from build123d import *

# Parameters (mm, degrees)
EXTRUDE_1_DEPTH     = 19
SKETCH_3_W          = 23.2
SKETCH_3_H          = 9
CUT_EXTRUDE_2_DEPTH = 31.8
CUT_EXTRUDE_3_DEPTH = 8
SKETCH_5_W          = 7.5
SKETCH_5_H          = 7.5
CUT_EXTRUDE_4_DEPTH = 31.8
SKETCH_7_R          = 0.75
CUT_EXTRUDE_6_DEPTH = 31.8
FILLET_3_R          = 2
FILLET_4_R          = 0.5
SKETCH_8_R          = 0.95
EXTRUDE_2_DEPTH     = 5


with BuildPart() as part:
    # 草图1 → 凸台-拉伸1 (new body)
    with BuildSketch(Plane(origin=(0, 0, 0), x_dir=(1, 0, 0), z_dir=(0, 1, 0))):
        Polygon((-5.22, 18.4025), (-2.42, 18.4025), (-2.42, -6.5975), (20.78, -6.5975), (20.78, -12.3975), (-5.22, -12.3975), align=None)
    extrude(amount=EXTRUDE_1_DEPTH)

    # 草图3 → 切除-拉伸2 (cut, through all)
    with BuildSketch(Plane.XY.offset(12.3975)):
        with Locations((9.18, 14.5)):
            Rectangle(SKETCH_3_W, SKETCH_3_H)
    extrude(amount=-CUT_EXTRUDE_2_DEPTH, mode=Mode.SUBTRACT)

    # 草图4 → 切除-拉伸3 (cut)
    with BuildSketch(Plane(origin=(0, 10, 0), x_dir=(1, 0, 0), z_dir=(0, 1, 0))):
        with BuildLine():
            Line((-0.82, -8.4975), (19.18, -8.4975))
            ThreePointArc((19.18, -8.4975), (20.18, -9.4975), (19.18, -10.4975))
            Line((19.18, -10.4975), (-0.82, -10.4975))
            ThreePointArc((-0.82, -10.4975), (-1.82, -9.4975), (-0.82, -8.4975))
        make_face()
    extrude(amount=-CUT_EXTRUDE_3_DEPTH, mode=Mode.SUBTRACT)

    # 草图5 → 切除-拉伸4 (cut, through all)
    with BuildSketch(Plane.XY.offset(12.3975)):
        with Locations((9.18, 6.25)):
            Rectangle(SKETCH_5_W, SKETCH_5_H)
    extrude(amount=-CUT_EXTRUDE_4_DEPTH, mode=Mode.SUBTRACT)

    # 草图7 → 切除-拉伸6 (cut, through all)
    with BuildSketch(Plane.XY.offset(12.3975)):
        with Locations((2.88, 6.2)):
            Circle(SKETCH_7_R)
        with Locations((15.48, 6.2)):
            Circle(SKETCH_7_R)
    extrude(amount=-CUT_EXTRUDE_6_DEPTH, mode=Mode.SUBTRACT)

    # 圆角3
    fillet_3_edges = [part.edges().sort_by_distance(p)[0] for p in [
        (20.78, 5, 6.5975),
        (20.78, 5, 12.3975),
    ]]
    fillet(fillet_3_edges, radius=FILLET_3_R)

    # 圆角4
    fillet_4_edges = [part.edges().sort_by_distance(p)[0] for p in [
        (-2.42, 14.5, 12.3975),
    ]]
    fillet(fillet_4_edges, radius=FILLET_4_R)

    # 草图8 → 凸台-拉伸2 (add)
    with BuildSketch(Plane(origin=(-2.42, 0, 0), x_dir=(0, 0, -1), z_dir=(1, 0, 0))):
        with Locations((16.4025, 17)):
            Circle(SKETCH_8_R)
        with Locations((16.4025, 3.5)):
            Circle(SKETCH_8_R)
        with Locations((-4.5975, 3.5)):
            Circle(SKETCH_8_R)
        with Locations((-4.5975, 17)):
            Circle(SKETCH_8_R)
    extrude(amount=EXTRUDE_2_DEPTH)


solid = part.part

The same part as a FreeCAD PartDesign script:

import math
import FreeCAD as App
import Part
import Sketcher
Q = App.Units.Quantity


def edges_at(feature, points):
    """Names of the edges that pass closest to the given points."""
    edges = feature.Shape.Edges
    near = lambda p: min(range(len(edges)), key=lambda i: edges[i].distToShape(Part.Vertex(*p))[0])
    return sorted({f"Edge{near(p) + 1}" for p in points})

doc = App.newDocument("Part")
body = doc.addObject("PartDesign::Body", "Body")

sketch1 = body.newObject("Sketcher::SketchObject", "Sketch")
sketch1.AttachmentSupport = (doc.getObject("XZ_Plane"), [""])
sketch1.MapMode = "FlatFace"
sketch1.addGeometry([
    Part.LineSegment(App.Vector(-2.42, -18.4025, 0), App.Vector(-5.22, -18.4025, 0)),
    Part.LineSegment(App.Vector(-5.22, -18.4025, 0), App.Vector(-5.22, 12.3975, 0)),
    Part.LineSegment(App.Vector(-5.22, 12.3975, 0), App.Vector(20.78, 12.3975, 0)),
    Part.LineSegment(App.Vector(20.78, 12.3975, 0), App.Vector(20.78, 6.5975, 0)),
    Part.LineSegment(App.Vector(20.78, 6.5975, 0), App.Vector(-2.42, 6.5975, 0)),
    Part.LineSegment(App.Vector(-2.42, 6.5975, 0), App.Vector(-2.42, -18.4025, 0)),
], False)
sketch1.addConstraint([
    Sketcher.Constraint("Coincident", 0, 2, 1, 1),
    Sketcher.Constraint("Coincident", 1, 2, 2, 1),
    Sketcher.Constraint("Coincident", 2, 2, 3, 1),
    Sketcher.Constraint("Coincident", 3, 2, 4, 1),
    Sketcher.Constraint("Coincident", 4, 2, 5, 1),
    Sketcher.Constraint("Coincident", 5, 2, 0, 1),
    Sketcher.Constraint("Horizontal", 0),
    Sketcher.Constraint("Vertical", 1),
    Sketcher.Constraint("Horizontal", 2),
    Sketcher.Constraint("Vertical", 3),
    Sketcher.Constraint("Horizontal", 4),
    Sketcher.Constraint("Vertical", 5),
    Sketcher.Constraint("DistanceX", 2, 1, 2, 2, Q("26 mm")),
    Sketcher.Constraint("DistanceY", 5, 2, 5, 1, Q("25 mm")),
    Sketcher.Constraint("DistanceX", 0, 2, 0, 1, Q("2.8 mm")),
    Sketcher.Constraint("DistanceY", 1, 1, 1, 2, Q("30.8 mm")),
    Sketcher.Constraint("DistanceX", 0, 2, -1, 1, Q("5.22 mm")),
    Sketcher.Constraint("DistanceY", 0, 2, -1, 1, Q("18.4025 mm")),
])
pad1 = body.newObject("PartDesign::Pad", "Pad")
pad1.Profile = sketch1
pad1.Length = 19
pad1.Reversed = True

sketch2 = body.newObject("Sketcher::SketchObject", "Sketch001")
sketch2.AttachmentSupport = (doc.getObject("XY_Plane"), [""])
sketch2.MapMode = "FlatFace"
sketch2.AttachmentOffset = App.Placement(App.Vector(0, 0, 12.3975), App.Rotation())
sketch2.addGeometry([
    Part.LineSegment(App.Vector(-2.42, 19, 0), App.Vector(-2.42, 10, 0)),
    Part.LineSegment(App.Vector(-2.42, 10, 0), App.Vector(20.78, 10, 0)),
    Part.LineSegment(App.Vector(20.78, 10, 0), App.Vector(20.78, 19, 0)),
    Part.LineSegment(App.Vector(20.78, 19, 0), App.Vector(-2.42, 19, 0)),
], False)
sketch2.addConstraint([
    Sketcher.Constraint("Coincident", 0, 2, 1, 1),
    Sketcher.Constraint("Coincident", 1, 2, 2, 1),
    Sketcher.Constraint("Coincident", 2, 2, 3, 1),
    Sketcher.Constraint("Coincident", 3, 2, 0, 1),
    Sketcher.Constraint("Vertical", 0),
    Sketcher.Constraint("Horizontal", 1),
    Sketcher.Constraint("Vertical", 2),
    Sketcher.Constraint("Horizontal", 3),
    Sketcher.Constraint("DistanceY", 0, 2, 0, 1, Q("9 mm")),
    Sketcher.Constraint("DistanceX", 1, 1, 1, 2, Q("23.2 mm")),
    Sketcher.Constraint("DistanceY", -1, 1, 0, 2, Q("10 mm")),
    Sketcher.Constraint("DistanceX", 0, 2, -1, 1, Q("2.42 mm")),
])
pocket1 = body.newObject("PartDesign::Pocket", "Pocket")
pocket1.Profile = sketch2
pocket1.Type = "ThroughAll"

sketch3 = body.newObject("Sketcher::SketchObject", "Sketch002")
sketch3.AttachmentSupport = (doc.getObject("XZ_Plane"), [""])
sketch3.MapMode = "FlatFace"
sketch3.AttachmentOffset = App.Placement(App.Vector(0, 0, -10), App.Rotation())
sketch3.addGeometry([
    Part.LineSegment(App.Vector(19.18, 8.4975, 0), App.Vector(-0.82, 8.4975, 0)),
    Part.ArcOfCircle(Part.Circle(App.Vector(-0.82, 9.4975, 0), App.Vector(0, 0, 1), 1), math.radians(90), math.radians(270)),
    Part.LineSegment(App.Vector(-0.82, 10.4975, 0), App.Vector(19.18, 10.4975, 0)),
    Part.ArcOfCircle(Part.Circle(App.Vector(19.18, 9.4975, 0), App.Vector(0, 0, 1), 1), math.radians(-90), math.radians(90)),
], False)
sketch3.addConstraint([
    Sketcher.Constraint("Tangent", 0, 2, 1, 2),
    Sketcher.Constraint("Tangent", 1, 1, 2, 1),
    Sketcher.Constraint("Tangent", 2, 2, 3, 2),
    Sketcher.Constraint("Tangent", 3, 1, 0, 1),
    Sketcher.Constraint("Horizontal", 0),
    Sketcher.Constraint("Horizontal", 2),
    Sketcher.Constraint("Radius", 1, Q("1 mm")),
    Sketcher.Constraint("DistanceX", 0, 2, 0, 1, Q("20 mm")),
    Sketcher.Constraint("DistanceX", 1, 3, -1, 1, Q("0.82 mm")),
    Sketcher.Constraint("DistanceY", -1, 1, 1, 3, Q("9.4975 mm")),
])
pocket2 = body.newObject("PartDesign::Pocket", "Pocket001")
pocket2.Profile = sketch3
pocket2.Length = 8
pocket2.Reversed = True

sketch4 = body.newObject("Sketcher::SketchObject", "Sketch003")
sketch4.AttachmentSupport = (doc.getObject("XY_Plane"), [""])
sketch4.MapMode = "FlatFace"
sketch4.AttachmentOffset = App.Placement(App.Vector(0, 0, 12.3975), App.Rotation())
sketch4.addGeometry([
    Part.LineSegment(App.Vector(5.43, 10, 0), App.Vector(5.43, 2.5, 0)),
    Part.LineSegment(App.Vector(5.43, 2.5, 0), App.Vector(12.93, 2.5, 0)),
    Part.LineSegment(App.Vector(12.93, 2.5, 0), App.Vector(12.93, 10, 0)),
    Part.LineSegment(App.Vector(12.93, 10, 0), App.Vector(5.43, 10, 0)),
], False)
sketch4.addConstraint([
    Sketcher.Constraint("Coincident", 0, 2, 1, 1),
    Sketcher.Constraint("Coincident", 1, 2, 2, 1),
    Sketcher.Constraint("Coincident", 2, 2, 3, 1),
    Sketcher.Constraint("Coincident", 3, 2, 0, 1),
    Sketcher.Constraint("Vertical", 0),
    Sketcher.Constraint("Horizontal", 1),
    Sketcher.Constraint("Vertical", 2),
    Sketcher.Constraint("Horizontal", 3),
    Sketcher.Constraint("Equal", 3, 0),
    Sketcher.Constraint("DistanceX", 1, 1, 1, 2, Q("7.5 mm")),
    Sketcher.Constraint("DistanceY", -1, 1, 2, 2, Q("10 mm")),
    Sketcher.Constraint("DistanceX", -1, 1, 0, 2, Q("5.43 mm")),
])
pocket3 = body.newObject("PartDesign::Pocket", "Pocket002")
pocket3.Profile = sketch4
pocket3.Type = "ThroughAll"

sketch5 = body.newObject("Sketcher::SketchObject", "Sketch004")
sketch5.AttachmentSupport = (doc.getObject("XY_Plane"), [""])
sketch5.MapMode = "FlatFace"
sketch5.AttachmentOffset = App.Placement(App.Vector(0, 0, 12.3975), App.Rotation())
sketch5.addGeometry([
    Part.Circle(App.Vector(2.88, 6.2, 0), App.Vector(0, 0, 1), 0.75),
    Part.Circle(App.Vector(15.48, 6.2, 0), App.Vector(0, 0, 1), 0.75),
], False)
sketch5.addConstraint([
    Sketcher.Constraint("Equal", 0, 1),
    Sketcher.Constraint("Horizontal", 0, 3, 1, 3),
    Sketcher.Constraint("Diameter", 0, Q("1.5 mm")),
    Sketcher.Constraint("DistanceY", -1, 1, 0, 3, Q("6.2 mm")),
    Sketcher.Constraint("DistanceX", 0, 3, 1, 3, Q("12.6 mm")),
    Sketcher.Constraint("DistanceX", -1, 1, 0, 3, Q("2.88 mm")),
])
pocket4 = body.newObject("PartDesign::Pocket", "Pocket003")
pocket4.Profile = sketch5
pocket4.Type = "ThroughAll"
doc.recompute()

fillet = body.newObject("PartDesign::Fillet", "Fillet")
fillet.Base = (pocket4, edges_at(pocket4, [(20.78, 5, 6.598), (20.78, 5, 12.398)]))
fillet.Radius = 2
doc.recompute()

fillet2 = body.newObject("PartDesign::Fillet", "Fillet001")
fillet2.Base = (fillet, edges_at(fillet, [(-2.42, 14.5, 12.398)]))
fillet2.Radius = 0.5

sketch6 = body.newObject("Sketcher::SketchObject", "Sketch005")
sketch6.AttachmentSupport = (doc.getObject("YZ_Plane"), [""])
sketch6.MapMode = "FlatFace"
sketch6.AttachmentOffset = App.Placement(App.Vector(0, 0, -2.42), App.Rotation())
sketch6.addGeometry([
    Part.Circle(App.Vector(17, -16.4025, 0), App.Vector(0, 0, 1), 0.95),
    Part.Circle(App.Vector(3.5, -16.4025, 0), App.Vector(0, 0, 1), 0.95),
    Part.Circle(App.Vector(3.5, 4.5975, 0), App.Vector(0, 0, 1), 0.95),
    Part.Circle(App.Vector(17, 4.5975, 0), App.Vector(0, 0, 1), 0.95),
], False)
sketch6.addConstraint([
    Sketcher.Constraint("Equal", 0, 1),
    Sketcher.Constraint("Equal", 1, 2),
    Sketcher.Constraint("Equal", 2, 3),
    Sketcher.Constraint("Horizontal", 0, 3, 1, 3),
    Sketcher.Constraint("Horizontal", 2, 3, 3, 3),
    Sketcher.Constraint("Vertical", 1, 3, 2, 3),
    Sketcher.Constraint("Vertical", 0, 3, 3, 3),
    Sketcher.Constraint("Diameter", 0, Q("1.9 mm")),
    Sketcher.Constraint("DistanceX", -1, 1, 0, 3, Q("17 mm")),
    Sketcher.Constraint("DistanceY", 1, 3, 2, 3, Q("21 mm")),
    Sketcher.Constraint("DistanceX", -1, 1, 1, 3, Q("3.5 mm")),
    Sketcher.Constraint("DistanceY", 0, 3, -1, 1, Q("16.4025 mm")),
])
pad2 = body.newObject("PartDesign::Pad", "Pad001")
pad2.Profile = sketch6
pad2.Length = 5

doc.recompute()
